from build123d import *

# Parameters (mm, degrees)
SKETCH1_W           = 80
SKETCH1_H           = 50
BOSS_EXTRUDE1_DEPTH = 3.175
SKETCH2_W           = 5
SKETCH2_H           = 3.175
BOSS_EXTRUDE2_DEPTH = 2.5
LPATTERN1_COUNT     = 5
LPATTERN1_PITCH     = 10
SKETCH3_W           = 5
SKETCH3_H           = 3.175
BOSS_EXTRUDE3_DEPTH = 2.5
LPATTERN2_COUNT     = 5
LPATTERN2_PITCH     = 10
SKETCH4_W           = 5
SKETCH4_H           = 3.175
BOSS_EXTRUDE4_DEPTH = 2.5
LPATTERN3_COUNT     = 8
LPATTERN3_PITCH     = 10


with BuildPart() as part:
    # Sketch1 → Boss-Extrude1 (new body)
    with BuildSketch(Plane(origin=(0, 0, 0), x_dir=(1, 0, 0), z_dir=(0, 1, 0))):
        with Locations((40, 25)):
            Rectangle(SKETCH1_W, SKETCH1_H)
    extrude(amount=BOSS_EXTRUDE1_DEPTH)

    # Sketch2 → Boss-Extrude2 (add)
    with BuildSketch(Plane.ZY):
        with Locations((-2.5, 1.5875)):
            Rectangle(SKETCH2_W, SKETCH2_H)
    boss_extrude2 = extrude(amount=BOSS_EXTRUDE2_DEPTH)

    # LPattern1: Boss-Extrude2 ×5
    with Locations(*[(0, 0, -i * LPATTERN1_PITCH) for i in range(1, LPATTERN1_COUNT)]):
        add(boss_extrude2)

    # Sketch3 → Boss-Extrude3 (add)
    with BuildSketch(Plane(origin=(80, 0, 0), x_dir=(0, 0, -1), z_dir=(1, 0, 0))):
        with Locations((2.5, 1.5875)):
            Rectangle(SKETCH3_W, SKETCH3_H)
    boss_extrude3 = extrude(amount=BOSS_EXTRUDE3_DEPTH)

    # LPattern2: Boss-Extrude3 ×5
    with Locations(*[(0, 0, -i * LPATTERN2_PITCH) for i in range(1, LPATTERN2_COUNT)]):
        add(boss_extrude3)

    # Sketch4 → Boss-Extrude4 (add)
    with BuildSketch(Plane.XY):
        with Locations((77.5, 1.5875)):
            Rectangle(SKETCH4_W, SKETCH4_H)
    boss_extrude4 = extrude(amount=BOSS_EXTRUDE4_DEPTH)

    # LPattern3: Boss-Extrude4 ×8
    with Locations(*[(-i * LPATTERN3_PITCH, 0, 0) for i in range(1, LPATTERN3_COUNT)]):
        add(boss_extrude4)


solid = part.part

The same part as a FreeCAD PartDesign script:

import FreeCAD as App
import Part
import Sketcher

V = App.Vector

doc = App.newDocument("Part")
body = doc.addObject("PartDesign::Body", "Body")

# Sketch on XZ plane
sketch1 = body.newObject("Sketcher::SketchObject", "Sketch")
sketch1.AttachmentSupport = (doc.getObject("XZ_Plane"), [""])
sketch1.MapMode = "FlatFace"
sketch1.addGeometry([
    Part.LineSegment(V(0, -50, 0), V(0, 0, 0)),
    Part.LineSegment(V(0, 0, 0), V(80, 0, 0)),
    Part.LineSegment(V(80, 0, 0), V(80, -50, 0)),
    Part.LineSegment(V(80, -50, 0), V(0, -50, 0)),
], False)
sketch1.addConstraint([
    Sketcher.Constraint("Coincident", 0, 2, 1, 1),
    Sketcher.Constraint("Coincident", 1, 2, 2, 1),
    Sketcher.Constraint("Coincident", 2, 2, 3, 1),
    Sketcher.Constraint("Coincident", 3, 2, 0, 1),
    Sketcher.Constraint("Vertical", 0),
    Sketcher.Constraint("Horizontal", 1),
    Sketcher.Constraint("Vertical", 2),
    Sketcher.Constraint("Horizontal", 3),
    Sketcher.Constraint("Coincident", 0, 2, -1, 1),
    Sketcher.Constraint("DistanceX", 1, 1, 1, 2, 80.0),
    Sketcher.Constraint("DistanceY", 0, 1, 0, 2, 50.0),
])
pad1 = body.newObject("PartDesign::Pad", "Pad")
pad1.Profile = sketch1
pad1.Length = 3.175
pad1.Reversed = True

# Sketch on YZ plane
sketch2 = body.newObject("Sketcher::SketchObject", "Sketch001")
sketch2.AttachmentSupport = (doc.getObject("YZ_Plane"), [""])
sketch2.MapMode = "FlatFace"
sketch2.addGeometry([
    Part.LineSegment(V(3.175, -5, 0), V(0, -5, 0)),
    Part.LineSegment(V(0, -5, 0), V(0, 0, 0)),
    Part.LineSegment(V(0, 0, 0), V(3.175, 0, 0)),
    Part.LineSegment(V(3.175, 0, 0), V(3.175, -5, 0)),
], False)
sketch2.addConstraint([
    Sketcher.Constraint("Coincident", 0, 2, 1, 1),
    Sketcher.Constraint("Coincident", 1, 2, 2, 1),
    Sketcher.Constraint("Coincident", 2, 2, 3, 1),
    Sketcher.Constraint("Coincident", 3, 2, 0, 1),
    Sketcher.Constraint("Horizontal", 0),
    Sketcher.Constraint("Vertical", 1),
    Sketcher.Constraint("Horizontal", 2),
    Sketcher.Constraint("Vertical", 3),
    Sketcher.Constraint("Coincident", 1, 2, -1, 1),
    Sketcher.Constraint("DistanceY", 1, 1, 1, 2, 5.0),
    Sketcher.Constraint("DistanceX", 0, 2, 0, 1, 3.175),
])
pad2 = body.newObject("PartDesign::Pad", "Pad001")
pad2.Profile = sketch2
pad2.Length = 2.5
pad2.Reversed = True
doc.recompute()

linearpattern = body.newObject("PartDesign::LinearPattern", "LinearPattern")
linearpattern.Originals = [pad2]
linearpattern.Direction = (doc.getObject("Z_Axis"), [""])
linearpattern.Mode = "offset"
linearpattern.Offset = 10
linearpattern.Occurrences = 5
linearpattern.Reversed = True
body.Tip = linearpattern

# Sketch on YZ plane
sketch3 = body.newObject("Sketcher::SketchObject", "Sketch002")
sketch3.AttachmentSupport = (doc.getObject("YZ_Plane"), [""])
sketch3.MapMode = "FlatFace"
sketch3.AttachmentOffset = App.Placement(V(0, 0, 80), App.Rotation())
sketch3.addGeometry([
    Part.LineSegment(V(3.175, 0, 0), V(0, 0, 0)),
    Part.LineSegment(V(0, 0, 0), V(0, -5, 0)),
    Part.LineSegment(V(0, -5, 0), V(3.175, -5, 0)),
    Part.LineSegment(V(3.175, -5, 0), V(3.175, 0, 0)),
], False)
sketch3.addConstraint([
    Sketcher.Constraint("Coincident", 0, 2, 1, 1),
    Sketcher.Constraint("Coincident", 1, 2, 2, 1),
    Sketcher.Constraint("Coincident", 2, 2, 3, 1),
    Sketcher.Constraint("Coincident", 3, 2, 0, 1),
    Sketcher.Constraint("Horizontal", 0),
    Sketcher.Constraint("Vertical", 1),
    Sketcher.Constraint("Horizontal", 2),
    Sketcher.Constraint("Vertical", 3),
    Sketcher.Constraint("Coincident", 0, 2, -1, 1),
    Sketcher.Constraint("DistanceY", 1, 2, 1, 1, 5.0),
    Sketcher.Constraint("DistanceX", 0, 2, 0, 1, 3.175),
])
pad3 = body.newObject("PartDesign::Pad", "Pad002")
pad3.Profile = sketch3
pad3.Length = 2.5
doc.recompute()

linearpattern2 = body.newObject("PartDesign::LinearPattern", "LinearPattern001")
linearpattern2.Originals = [pad3]
linearpattern2.Direction = (doc.getObject("Z_Axis"), [""])
linearpattern2.Mode = "offset"
linearpattern2.Offset = 10
linearpattern2.Occurrences = 5
linearpattern2.Reversed = True
body.Tip = linearpattern2

# Sketch on XY plane
sketch4 = body.newObject("Sketcher::SketchObject", "Sketch003")
sketch4.AttachmentSupport = (doc.getObject("XY_Plane"), [""])
sketch4.MapMode = "FlatFace"
sketch4.addGeometry([
    Part.LineSegment(V(75, 3.175, 0), V(75, 0, 0)),
    Part.LineSegment(V(75, 0, 0), V(80, 0, 0)),
    Part.LineSegment(V(80, 0, 0), V(80, 3.175, 0)),
    Part.LineSegment(V(80, 3.175, 0), V(75, 3.175, 0)),
], False)
sketch4.addConstraint([
    Sketcher.Constraint("Coincident", 0, 2, 1, 1),
    Sketcher.Constraint("Coincident", 1, 2, 2, 1),
    Sketcher.Constraint("Coincident", 2, 2, 3, 1),
    Sketcher.Constraint("Coincident", 3, 2, 0, 1),
    Sketcher.Constraint("Vertical", 0),
    Sketcher.Constraint("Horizontal", 1),
    Sketcher.Constraint("Vertical", 2),
    Sketcher.Constraint("Horizontal", 3),
    Sketcher.Constraint("PointOnObject", 0, 2, -1),
    Sketcher.Constraint("DistanceX", 1, 1, 1, 2, 5.0),
    Sketcher.Constraint("DistanceX", -1, 1, 0, 2, 75.0),
    Sketcher.Constraint("DistanceY", 0, 2, 0, 1, 3.175),
])
pad4 = body.newObject("PartDesign::Pad", "Pad003")
pad4.Profile = sketch4
pad4.Length = 2.5
doc.recompute()

linearpattern3 = body.newObject("PartDesign::LinearPattern", "LinearPattern002")
linearpattern3.Originals = [pad4]
linearpattern3.Direction = (doc.getObject("X_Axis"), [""])
linearpattern3.Mode = "offset"
linearpattern3.Offset = 10
linearpattern3.Occurrences = 8
linearpattern3.Reversed = True
body.Tip = linearpattern3

doc.recompute()
